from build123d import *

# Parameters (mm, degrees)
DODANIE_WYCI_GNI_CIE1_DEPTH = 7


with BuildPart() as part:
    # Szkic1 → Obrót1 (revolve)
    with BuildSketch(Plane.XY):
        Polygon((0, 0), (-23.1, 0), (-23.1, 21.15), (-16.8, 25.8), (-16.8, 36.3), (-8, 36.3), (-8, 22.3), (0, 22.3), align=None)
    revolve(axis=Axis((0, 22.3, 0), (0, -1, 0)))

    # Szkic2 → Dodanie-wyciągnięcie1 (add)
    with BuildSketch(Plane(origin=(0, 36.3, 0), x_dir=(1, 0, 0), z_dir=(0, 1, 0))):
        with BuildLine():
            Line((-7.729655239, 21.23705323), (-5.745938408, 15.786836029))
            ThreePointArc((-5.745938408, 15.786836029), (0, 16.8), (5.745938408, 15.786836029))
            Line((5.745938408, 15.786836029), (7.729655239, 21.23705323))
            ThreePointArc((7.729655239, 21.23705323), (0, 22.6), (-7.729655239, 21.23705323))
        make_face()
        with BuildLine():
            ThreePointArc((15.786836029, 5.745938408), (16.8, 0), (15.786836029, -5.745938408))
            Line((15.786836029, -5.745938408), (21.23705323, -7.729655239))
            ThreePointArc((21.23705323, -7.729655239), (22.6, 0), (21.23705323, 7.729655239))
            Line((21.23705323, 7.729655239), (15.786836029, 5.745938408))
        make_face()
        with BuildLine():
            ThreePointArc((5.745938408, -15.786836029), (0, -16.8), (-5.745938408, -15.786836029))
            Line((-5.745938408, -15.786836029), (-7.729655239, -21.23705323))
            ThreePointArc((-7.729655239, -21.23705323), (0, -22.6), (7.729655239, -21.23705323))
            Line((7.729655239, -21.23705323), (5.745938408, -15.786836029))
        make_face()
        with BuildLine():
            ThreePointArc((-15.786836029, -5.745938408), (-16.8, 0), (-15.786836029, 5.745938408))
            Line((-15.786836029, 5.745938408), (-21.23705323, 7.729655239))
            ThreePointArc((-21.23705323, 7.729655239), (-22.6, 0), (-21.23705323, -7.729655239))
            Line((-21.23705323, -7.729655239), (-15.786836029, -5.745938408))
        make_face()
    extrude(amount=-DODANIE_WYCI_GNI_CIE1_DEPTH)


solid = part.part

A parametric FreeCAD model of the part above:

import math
import FreeCAD as App
import Part
import Sketcher
Q = App.Units.Quantity


def add_polygon(sketch, points):
    """Adds a closed chain of lines whose ends are joined by coincident constraints."""
    first, n = sketch.GeometryCount, len(points)
    for a, b in zip(points, points[1:] + points[:1]):
        sketch.addGeometry(Part.LineSegment(App.Vector(*a, 0), App.Vector(*b, 0)), False)
    for i in range(n):
        sketch.addConstraint(Sketcher.Constraint("Coincident", first + i, 2, first + (i + 1) % n, 1))

doc = App.newDocument("Part")
body = doc.addObject("PartDesign::Body", "Body")

sketch1 = doc.addObject("Sketcher::SketchObject", "Sketch")
body.addObject(sketch1)
sketch1.AttachmentSupport = (doc.XY_Plane, [""])
sketch1.MapMode = "FlatFace"
add_polygon(sketch1, [(-23, 0), (0, 0), (0, 22), (-8, 22), (-8, 36), (-17, 36), (-17, 26), (-23, 21)])
sketch1.addConstraint([
    Sketcher.Constraint("Horizontal", 0),
    Sketcher.Constraint("Vertical", 1),
    Sketcher.Constraint("Horizontal", 2),
    Sketcher.Constraint("Vertical", 3),
    Sketcher.Constraint("Horizontal", 4),
    Sketcher.Constraint("Vertical", 5),
    Sketcher.Constraint("Vertical", 7),
    Sketcher.Constraint("Coincident", 0, 2, -1, 1),
    Sketcher.Constraint("DistanceX", 2, 2, 2, 1, 8.0),
    Sketcher.Constraint("DistanceY", 3, 1, 3, 2, 14.0),
    Sketcher.Constraint("DistanceX", 0, 1, 0, 2, 23.1),
    Sketcher.Constraint("DistanceX", 4, 2, 4, 1, 8.8),
    Sketcher.Constraint("DistanceY", 1, 1, 1, 2, 22.3),
    Sketcher.Constraint("DistanceY", 5, 2, 5, 1, 10.5),
    Sketcher.Constraint("DistanceY", 7, 2, 7, 1, 21.15),
])
revolution = doc.addObject("PartDesign::Revolution", "Revolution")
body.addObject(revolution)
revolution.Profile = sketch1
revolution.ReferenceAxis = (sketch1, ["V_Axis"])
revolution.Angle = 360

sketch2 = doc.addObject("Sketcher::SketchObject", "Sketch001")
body.addObject(sketch2)
sketch2.AttachmentSupport = (doc.XZ_Plane, [""])
sketch2.MapMode = "FlatFace"
sketch2.AttachmentOffset = App.Placement(App.Vector(0, 0, -36.3), App.Rotation())
sketch2.addGeometry([
    Part.LineSegment(App.Vector(-8, -21, 0), App.Vector(-6, -16, 0)),
    Part.ArcOfCircle(Part.Circle(App.Vector(0, 0, 0), App.Vector(0, 0, 1), 17), math.radians(-110), math.radians(-70)),
    Part.LineSegment(App.Vector(6, -16, 0), App.Vector(8, -21, 0)),
    Part.ArcOfCircle(Part.Circle(App.Vector(0, 0, 0), App.Vector(0, 0, 1), 23), math.radians(-110), math.radians(-70)),
    Part.ArcOfCircle(Part.Circle(App.Vector(0, 0, 0), App.Vector(0, 0, 1), 17), math.radians(-20), math.radians(20)),
    Part.LineSegment(App.Vector(16, 6, 0), App.Vector(21, 8, 0)),
    Part.ArcOfCircle(Part.Circle(App.Vector(0, 0, 0), App.Vector(0, 0, 1), 23), math.radians(-20), math.radians(20)),
    Part.LineSegment(App.Vector(21, -8, 0), App.Vector(16, -6, 0)),
    Part.ArcOfCircle(Part.Circle(App.Vector(0, 0, 0), App.Vector(0, 0, 1), 17), math.radians(70), math.radians(110)),
    Part.LineSegment(App.Vector(-6, 16, 0), App.Vector(-8, 21, 0)),
    Part.ArcOfCircle(Part.Circle(App.Vector(0, 0, 0), App.Vector(0, 0, 1), 23), math.radians(70), math.radians(110)),
    Part.LineSegment(App.Vector(8, 21, 0), App.Vector(6, 16, 0)),
    Part.ArcOfCircle(Part.Circle(App.Vector(0, 0, 0), App.Vector(0, 0, 1), 17), math.radians(160), math.radians(200)),
    Part.LineSegment(App.Vector(-16, -6, 0), App.Vector(-21, -8, 0)),
    Part.ArcOfCircle(Part.Circle(App.Vector(0, 0, 0), App.Vector(0, 0, 1), 23), math.radians(160), math.radians(200)),
    Part.LineSegment(App.Vector(-21, 8, 0), App.Vector(-16, 6, 0)),
], False)
sketch2.addConstraint([
    Sketcher.Constraint("Coincident", 0, 2, 1, 1),
    Sketcher.Constraint("Coincident", 1, 2, 2, 1),
    Sketcher.Constraint("Coincident", 2, 2, 3, 2),
    Sketcher.Constraint("Coincident", 3, 1, 0, 1),
    Sketcher.Constraint("Coincident", 4, 2, 5, 1),
    Sketcher.Constraint("Coincident", 5, 2, 6, 2),
    Sketcher.Constraint("Coincident", 6, 1, 7, 1),
    Sketcher.Constraint("Coincident", 7, 2, 4, 1),
    Sketcher.Constraint("Coincident", 8, 2, 9, 1),
    Sketcher.Constraint("Coincident", 9, 2, 10, 2),
    Sketcher.Constraint("Coincident", 10, 1, 11, 1),
    Sketcher.Constraint("Coincident", 11, 2, 8, 1),
    Sketcher.Constraint("Coincident", 12, 2, 13, 1),
    Sketcher.Constraint("Coincident", 13, 2, 14, 2),
    Sketcher.Constraint("Coincident", 14, 1, 15, 1),
    Sketcher.Constraint("Coincident", 15, 2, 12, 1),
    Sketcher.Constraint("Coincident", 1, 3, -1, 1),
    Sketcher.Constraint("Coincident", 3, 3, -1, 1),
    Sketcher.Constraint("Coincident", 4, 3, -1, 1),
    Sketcher.Constraint("Coincident", 6, 3, -1, 1),
    Sketcher.Constraint("Coincident", 8, 3, -1, 1),
    Sketcher.Constraint("Coincident", 10, 3, -1, 1),
    Sketcher.Constraint("Coincident", 12, 3, -1, 1),
    Sketcher.Constraint("Coincident", 14, 3, -1, 1),
    Sketcher.Constraint("Equal", 1, 4),
    Sketcher.Constraint("Equal", 3, 6),
    Sketcher.Constraint("Equal", 4, 8),
    Sketcher.Constraint("Equal", 6, 10),
    Sketcher.Constraint("Equal", 8, 12),
    Sketcher.Constraint("Equal", 10, 14),
    Sketcher.Constraint("Perpendicular", 2, 5),
    Sketcher.Constraint("Perpendicular", 0, 7),
    Sketcher.Constraint("Perpendicular", 5, 9),
    Sketcher.Constraint("Perpendicular", 7, 11),
    Sketcher.Constraint("Perpendicular", 9, 13),
    Sketcher.Constraint("Perpendicular", 11, 15),
    Sketcher.Constraint("Horizontal", 0, 2, 1, 2),
    Sketcher.Constraint("Horizontal", 2, 2, 3, 1),
    Sketcher.Constraint("Horizontal", 9, 2, 10, 1),
    Sketcher.Constraint("Horizontal", 7, 2, 12, 2),
    Sketcher.Constraint("Horizontal", 5, 2, 14, 1),
    Sketcher.Constraint("Vertical", 5, 2, 6, 1),
    Sketcher.Constraint("Vertical", 0, 2, 8, 2),
    Sketcher.Constraint("Radius", 1, 16.8),
    Sketcher.Constraint("Radius", 3, 22.6),
    Sketcher.Constraint("Angle", 0, Q("70 deg")),
    Sketcher.Constraint("DistanceX", 0, 2, -1, 1, 5.745938),
    Sketcher.Constraint("DistanceY", -1, 1, 4, 2, 5.745938),
])
pad1 = doc.addObject("PartDesign::Pad", "Pad")
body.addObject(pad1)
pad1.Profile = sketch2
pad1.Length = 7

doc.recompute()
